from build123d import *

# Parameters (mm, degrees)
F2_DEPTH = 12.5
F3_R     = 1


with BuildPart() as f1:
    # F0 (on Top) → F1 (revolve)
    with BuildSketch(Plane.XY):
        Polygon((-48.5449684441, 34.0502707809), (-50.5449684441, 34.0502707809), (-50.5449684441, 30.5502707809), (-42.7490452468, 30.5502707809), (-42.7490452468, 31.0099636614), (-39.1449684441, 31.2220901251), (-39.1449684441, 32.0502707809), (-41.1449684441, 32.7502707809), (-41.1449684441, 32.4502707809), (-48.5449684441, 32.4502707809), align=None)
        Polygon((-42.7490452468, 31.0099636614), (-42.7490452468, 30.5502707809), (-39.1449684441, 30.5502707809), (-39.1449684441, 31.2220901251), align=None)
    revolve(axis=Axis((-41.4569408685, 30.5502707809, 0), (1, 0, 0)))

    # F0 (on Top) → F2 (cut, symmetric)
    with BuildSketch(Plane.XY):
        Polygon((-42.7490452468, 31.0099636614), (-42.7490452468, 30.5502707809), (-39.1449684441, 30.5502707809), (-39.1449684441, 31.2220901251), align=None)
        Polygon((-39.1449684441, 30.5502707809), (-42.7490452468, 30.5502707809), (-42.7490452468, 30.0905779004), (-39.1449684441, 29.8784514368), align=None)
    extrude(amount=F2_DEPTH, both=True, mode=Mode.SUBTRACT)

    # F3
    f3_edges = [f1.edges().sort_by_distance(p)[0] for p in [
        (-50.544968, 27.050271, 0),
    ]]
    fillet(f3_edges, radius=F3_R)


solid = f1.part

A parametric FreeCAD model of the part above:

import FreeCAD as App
import Part
import Sketcher

V = App.Vector


def edges_at(feature, points):
    """Names of the edges that pass closest to the given points."""
    edges = feature.Shape.Edges
    near = lambda p: min(range(len(edges)), key=lambda i: edges[i].distToShape(Part.Vertex(*p))[0])
    return sorted({f"Edge{near(p) + 1}" for p in points})

doc = App.newDocument("Part")
body = doc.addObject("PartDesign::Body", "Body")

sketch1 = body.newObject("Sketcher::SketchObject", "Sketch")
sketch1.AttachmentSupport = (doc.getObject("XY_Plane"), [""])
sketch1.MapMode = "FlatFace"
sketch1.addGeometry(Part.LineSegment(V(-48.54, 34.05, 0), V(-50.54, 34.05, 0)), False)
sketch1.addGeometry(Part.LineSegment(V(-50.54, 34.05, 0), V(-50.54, 30.55, 0)), False)
sketch1.addGeometry(Part.LineSegment(V(-50.54, 30.55, 0), V(-39.14, 30.55, 0)), False)
sketch1.addGeometry(Part.LineSegment(V(-39.14, 30.55, 0), V(-39.14, 32.05, 0)), False)
sketch1.addGeometry(Part.LineSegment(V(-39.14, 32.05, 0), V(-41.14, 32.75, 0)), False)
sketch1.addGeometry(Part.LineSegment(V(-41.14, 32.75, 0), V(-41.14, 32.45, 0)), False)
sketch1.addGeometry(Part.LineSegment(V(-41.14, 32.45, 0), V(-48.54, 32.45, 0)), False)
sketch1.addGeometry(Part.LineSegment(V(-48.54, 32.45, 0), V(-48.54, 34.05, 0)), False)
sketch1.addGeometry(Part.LineSegment(V(-50.54, 30.55, 0), V(-39.14, 30.55, 0)), True)
sketch1.addConstraint(Sketcher.Constraint("Coincident", 0, 2, 1, 1))
sketch1.addConstraint(Sketcher.Constraint("Coincident", 1, 2, 2, 1))
sketch1.addConstraint(Sketcher.Constraint("Coincident", 2, 2, 3, 1))
sketch1.addConstraint(Sketcher.Constraint("Coincident", 3, 2, 4, 1))
sketch1.addConstraint(Sketcher.Constraint("Coincident", 4, 2, 5, 1))
sketch1.addConstraint(Sketcher.Constraint("Coincident", 5, 2, 6, 1))
sketch1.addConstraint(Sketcher.Constraint("Coincident", 6, 2, 7, 1))
sketch1.addConstraint(Sketcher.Constraint("Coincident", 7, 2, 0, 1))
sketch1.addConstraint(Sketcher.Constraint("Horizontal", 0))
sketch1.addConstraint(Sketcher.Constraint("Vertical", 1))
sketch1.addConstraint(Sketcher.Constraint("Horizontal", 2))
sketch1.addConstraint(Sketcher.Constraint("Vertical", 3))
sketch1.addConstraint(Sketcher.Constraint("Vertical", 5))
sketch1.addConstraint(Sketcher.Constraint("Horizontal", 6))
sketch1.addConstraint(Sketcher.Constraint("Vertical", 7))
sketch1.addConstraint(Sketcher.Constraint("Horizontal", 8))
sketch1.addConstraint(Sketcher.Constraint("Coincident", 8, 1, 1, 2))
sketch1.addConstraint(Sketcher.Constraint("Vertical", 3, 2, 8, 2))
sketch1.addConstraint(Sketcher.Constraint("DistanceX", 0, 2, 0, 1, 2.0))
sketch1.addConstraint(Sketcher.Constraint("DistanceX", 2, 1, 2, 2, 11.4))
sketch1.addConstraint(Sketcher.Constraint("DistanceX", 6, 2, 6, 1, 7.4))
sketch1.addConstraint(Sketcher.Constraint("DistanceY", 1, 2, 1, 1, 3.5))
sketch1.addConstraint(Sketcher.Constraint("DistanceY", 3, 1, 3, 2, 1.5))
sketch1.addConstraint(Sketcher.Constraint("DistanceY", 5, 2, 5, 1, 0.3))
sketch1.addConstraint(Sketcher.Constraint("DistanceY", 7, 1, 7, 2, 1.6))
sketch1.addConstraint(Sketcher.Constraint("DistanceX", 0, 2, -1, 1, 50.544968))
sketch1.addConstraint(Sketcher.Constraint("DistanceY", -1, 1, 0, 2, 34.050271))
revolution = body.newObject("PartDesign::Revolution", "Revolution")
revolution.Profile = sketch1
revolution.ReferenceAxis = (sketch1, ["Axis0"])
revolution.Angle = 360

sketch2 = body.newObject("Sketcher::SketchObject", "Sketch001")
sketch2.AttachmentSupport = (doc.getObject("XY_Plane"), [""])
sketch2.MapMode = "FlatFace"
sketch2.addGeometry(Part.LineSegment(V(-42.7, 31, 0), V(-42.7, 30.1, 0)), False)
sketch2.addGeometry(Part.LineSegment(V(-42.7, 30.1, 0), V(-39.1, 29.9, 0)), False)
sketch2.addGeometry(Part.LineSegment(V(-39.1, 29.9, 0), V(-39.1, 31.2, 0)), False)
sketch2.addGeometry(Part.LineSegment(V(-39.1, 31.2, 0), V(-42.7, 31, 0)), False)
sketch2.addConstraint(Sketcher.Constraint("Coincident", 0, 2, 1, 1))
sketch2.addConstraint(Sketcher.Constraint("Coincident", 1, 2, 2, 1))
sketch2.addConstraint(Sketcher.Constraint("Coincident", 2, 2, 3, 1))
sketch2.addConstraint(Sketcher.Constraint("Coincident", 3, 2, 0, 1))
sketch2.addConstraint(Sketcher.Constraint("Vertical", 0))
sketch2.addConstraint(Sketcher.Constraint("Vertical", 2))
sketch2.addConstraint(Sketcher.Constraint("Equal", 1, 3))
sketch2.addConstraint(Sketcher.Constraint("DistanceY", 2, 1, 2, 2, 1.343639))
sketch2.addConstraint(Sketcher.Constraint("DistanceY", 0, 2, 0, 1, 0.919386))
sketch2.addConstraint(Sketcher.Constraint("DistanceX", 1, 2, -1, 1, 39.144968))
sketch2.addConstraint(Sketcher.Constraint("DistanceY", -1, 1, 1, 2, 29.878451))
sketch2.addConstraint(Sketcher.Constraint("Distance", 1, 3.610314))
pocket1 = body.newObject("PartDesign::Pocket", "Pocket")
pocket1.Profile = sketch2
pocket1.Length = 25
pocket1.Midplane = True
doc.recompute()

fillet = body.newObject("PartDesign::Fillet", "Fillet")
fillet.Base = (pocket1, edges_at(pocket1, [(-50.545, 27.05, 0)]))
fillet.Radius = 1

doc.recompute()
